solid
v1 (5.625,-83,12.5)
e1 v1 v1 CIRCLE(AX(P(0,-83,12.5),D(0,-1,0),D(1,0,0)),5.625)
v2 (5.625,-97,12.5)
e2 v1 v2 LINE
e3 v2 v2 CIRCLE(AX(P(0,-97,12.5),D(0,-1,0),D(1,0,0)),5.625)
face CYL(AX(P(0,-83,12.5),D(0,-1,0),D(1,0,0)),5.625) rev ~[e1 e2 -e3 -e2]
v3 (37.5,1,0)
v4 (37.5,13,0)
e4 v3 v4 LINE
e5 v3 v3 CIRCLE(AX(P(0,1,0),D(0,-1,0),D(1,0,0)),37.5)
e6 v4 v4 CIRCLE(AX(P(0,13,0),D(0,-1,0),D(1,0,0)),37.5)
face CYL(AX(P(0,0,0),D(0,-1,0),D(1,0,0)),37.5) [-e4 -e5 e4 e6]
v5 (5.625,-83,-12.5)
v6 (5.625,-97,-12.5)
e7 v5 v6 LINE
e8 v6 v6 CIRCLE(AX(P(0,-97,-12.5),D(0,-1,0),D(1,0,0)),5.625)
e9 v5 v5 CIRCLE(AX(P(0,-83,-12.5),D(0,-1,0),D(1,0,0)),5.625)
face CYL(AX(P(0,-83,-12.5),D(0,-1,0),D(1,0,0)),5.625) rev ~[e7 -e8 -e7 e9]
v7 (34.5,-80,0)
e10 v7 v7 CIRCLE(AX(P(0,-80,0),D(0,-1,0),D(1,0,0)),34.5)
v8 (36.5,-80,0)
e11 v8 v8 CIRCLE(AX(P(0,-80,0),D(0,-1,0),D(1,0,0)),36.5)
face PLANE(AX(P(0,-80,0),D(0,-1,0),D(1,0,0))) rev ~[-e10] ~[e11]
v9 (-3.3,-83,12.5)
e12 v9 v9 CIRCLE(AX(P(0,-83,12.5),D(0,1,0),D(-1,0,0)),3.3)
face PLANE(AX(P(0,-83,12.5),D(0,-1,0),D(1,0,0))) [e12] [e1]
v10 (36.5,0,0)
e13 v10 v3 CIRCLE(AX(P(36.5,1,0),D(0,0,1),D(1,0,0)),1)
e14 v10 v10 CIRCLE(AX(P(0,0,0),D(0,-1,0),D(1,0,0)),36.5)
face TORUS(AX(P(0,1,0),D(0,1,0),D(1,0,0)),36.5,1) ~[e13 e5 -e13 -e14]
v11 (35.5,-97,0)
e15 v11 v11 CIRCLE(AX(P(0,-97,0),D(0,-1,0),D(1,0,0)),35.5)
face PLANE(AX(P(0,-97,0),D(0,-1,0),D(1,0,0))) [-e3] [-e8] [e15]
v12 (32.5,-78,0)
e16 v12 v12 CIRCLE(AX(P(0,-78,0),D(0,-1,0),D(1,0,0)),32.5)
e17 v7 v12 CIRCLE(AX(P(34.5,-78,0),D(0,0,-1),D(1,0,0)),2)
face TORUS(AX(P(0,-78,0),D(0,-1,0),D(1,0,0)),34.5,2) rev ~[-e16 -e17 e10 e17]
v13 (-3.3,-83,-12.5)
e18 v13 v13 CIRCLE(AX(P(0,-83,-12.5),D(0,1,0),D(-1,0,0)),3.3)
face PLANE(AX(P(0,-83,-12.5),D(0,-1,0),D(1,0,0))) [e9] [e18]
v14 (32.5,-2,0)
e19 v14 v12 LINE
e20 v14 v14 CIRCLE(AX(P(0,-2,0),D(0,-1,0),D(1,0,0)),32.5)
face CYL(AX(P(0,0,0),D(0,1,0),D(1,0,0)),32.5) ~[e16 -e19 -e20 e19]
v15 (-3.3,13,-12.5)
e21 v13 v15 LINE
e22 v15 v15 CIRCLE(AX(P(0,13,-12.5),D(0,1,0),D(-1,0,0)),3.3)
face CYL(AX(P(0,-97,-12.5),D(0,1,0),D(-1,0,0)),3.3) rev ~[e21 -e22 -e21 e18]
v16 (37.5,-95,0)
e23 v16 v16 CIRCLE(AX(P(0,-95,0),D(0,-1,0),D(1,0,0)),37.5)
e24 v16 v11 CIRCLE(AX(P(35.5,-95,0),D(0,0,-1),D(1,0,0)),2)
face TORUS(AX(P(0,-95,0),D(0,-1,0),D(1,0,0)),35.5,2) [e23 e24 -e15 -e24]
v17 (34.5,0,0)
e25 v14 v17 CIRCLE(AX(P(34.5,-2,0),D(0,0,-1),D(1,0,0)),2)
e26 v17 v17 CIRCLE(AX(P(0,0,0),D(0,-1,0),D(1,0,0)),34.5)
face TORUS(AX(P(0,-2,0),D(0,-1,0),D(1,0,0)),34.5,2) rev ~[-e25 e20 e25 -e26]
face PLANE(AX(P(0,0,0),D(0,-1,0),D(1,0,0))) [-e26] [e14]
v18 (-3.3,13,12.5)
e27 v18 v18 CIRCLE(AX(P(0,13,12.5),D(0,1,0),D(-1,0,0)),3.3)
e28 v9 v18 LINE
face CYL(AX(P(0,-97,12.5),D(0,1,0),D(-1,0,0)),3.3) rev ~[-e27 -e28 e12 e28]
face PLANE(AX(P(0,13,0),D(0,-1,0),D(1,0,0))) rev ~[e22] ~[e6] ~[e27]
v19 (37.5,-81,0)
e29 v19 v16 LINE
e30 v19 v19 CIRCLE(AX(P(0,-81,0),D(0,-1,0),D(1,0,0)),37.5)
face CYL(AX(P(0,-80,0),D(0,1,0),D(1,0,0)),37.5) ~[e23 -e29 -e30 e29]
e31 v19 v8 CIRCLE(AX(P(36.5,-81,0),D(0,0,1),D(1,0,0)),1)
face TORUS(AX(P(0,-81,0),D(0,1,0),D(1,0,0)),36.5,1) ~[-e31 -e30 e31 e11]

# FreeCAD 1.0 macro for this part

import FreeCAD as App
import Part
import Sketcher

V = App.Vector
Q = App.Units.Quantity


def edges_at(feature, points):
    """Names of the edges that pass closest to the given points."""
    edges = feature.Shape.Edges
    near = lambda p: min(range(len(edges)), key=lambda i: edges[i].distToShape(Part.Vertex(*p))[0])
    return sorted({f"Edge{near(p) + 1}" for p in points})

doc = App.newDocument("Part")
params = doc.addObject("Spreadsheet::Sheet", "Params")
for row, (alias, value) in enumerate([
    ("sketch1_diameter", "65 mm"),
    ("pad1_length", "80 mm"),
    ("sketch2_diameter", "75 mm"),
    ("pad2_length", "13 mm"),
    ("sketch3_diameter", "75 mm"),
    ("pad3_length", "17 mm"),
    ("fillet_radius", "2 mm"),
    ("sketch4_diameter", "6.6 mm"),
    ("hole_diameter", "6.6 mm"),
    ("hole_cbore_diameter", "11.25 mm"),
    ("hole_cbore_depth", "14 mm"),
    ("fillet2_radius", "1 mm"),
], start=1):
    params.set(f"A{row}", alias)
    params.set(f"B{row}", "=" + value)
    params.setAlias(f"B{row}", alias)

body = doc.addObject("PartDesign::Body", "Body")

sketch1 = body.newObject("Sketcher::SketchObject", "Sketch")
sketch1.AttachmentSupport = (doc.getObject("XZ_Plane"), [""])
sketch1.MapMode = "FlatFace"
sketch1.addGeometry(Part.Circle(V(0, 0, 0), V(0, 0, 1), 32), False)
sketch1.addConstraint([
    Sketcher.Constraint("Coincident", 0, 3, -1, 1),
    Sketcher.Constraint("Diameter", 0, Q("65 mm")),
])
sketch1.setExpression("Constraints[1]", "Params.sketch1_diameter")
pad1 = body.newObject("PartDesign::Pad", "Pad")
pad1.Profile = sketch1
pad1.setExpression("Length", "Params.pad1_length")

sketch2 = body.newObject("Sketcher::SketchObject", "Sketch001")
sketch2.AttachmentSupport = (doc.getObject("XZ_Plane"), [""])
sketch2.MapMode = "FlatFace"
sketch2.addGeometry(Part.Circle(V(0, 0, 0), V(0, 0, 1), 38), False)
sketch2.addConstraint([
    Sketcher.Constraint("Coincident", 0, 3, -1, 1),
    Sketcher.Constraint("Diameter", 0, Q("75 mm")),
])
sketch2.setExpression("Constraints[1]", "Params.sketch2_diameter")
pad2 = body.newObject("PartDesign::Pad", "Pad001")
pad2.Profile = sketch2
pad2.setExpression("Length", "Params.pad2_length")
pad2.Reversed = True

sketch3 = body.newObject("Sketcher::SketchObject", "Sketch002")
sketch3.AttachmentSupport = (doc.getObject("XZ_Plane"), [""])
sketch3.MapMode = "FlatFace"
sketch3.AttachmentOffset = App.Placement(V(0, 0, 80), App.Rotation())
sketch3.addGeometry(Part.Circle(V(0, 0, 0), V(0, 0, 1), 38), False)
sketch3.addConstraint([
    Sketcher.Constraint("Coincident", 0, 3, -1, 1),
    Sketcher.Constraint("Diameter", 0, Q("75 mm")),
])
sketch3.setExpression("Constraints[1]", "Params.sketch3_diameter")
pad3 = body.newObject("PartDesign::Pad", "Pad002")
pad3.Profile = sketch3
pad3.setExpression("Length", "Params.pad3_length")
doc.recompute()

fillet = body.newObject("PartDesign::Fillet", "Fillet")
fillet.Base = (pad3, edges_at(pad3, [(-32.5, 0, 0), (-37.5, -97, 0), (-32.5, -80, 0)]))
fillet.setExpression("Radius", "Params.fillet_radius")

sketch4 = body.newObject("Sketcher::SketchObject", "Sketch003")
sketch4.AttachmentSupport = (doc.getObject("XZ_Plane"), [""])
sketch4.MapMode = "FlatFace"
sketch4.AttachmentOffset = App.Placement(V(0, 0, 97), App.Rotation())
sketch4.addGeometry([
    Part.Circle(V(0, 12.5, 0), V(0, 0, 1), 3.3),
    Part.Circle(V(0, -12.5, 0), V(0, 0, 1), 3.3),
], False)
sketch4.addConstraint([
    Sketcher.Constraint("Equal", 0, 1),
    Sketcher.Constraint("Symmetric", 0, 3, 1, 3, -1, 1),
    Sketcher.Constraint("PointOnObject", 0, 3, -2),
    Sketcher.Constraint("Diameter", 0, Q("6.6 mm")),
    Sketcher.Constraint("DistanceY", 1, 3, 0, 3, Q("25 mm")),
])
sketch4.setExpression("Constraints[3]", "Params.sketch4_diameter")
doc.recompute()
hole = body.newObject("PartDesign::Hole", "Hole")
hole.Profile = sketch4
hole.ThreadType = "None"
hole.setExpression("Diameter", "Params.hole_diameter")
hole.DepthType = "ThroughAll"
hole.HoleCutType = "Counterbore"
hole.setExpression("HoleCutDiameter", "Params.hole_cbore_diameter")
hole.setExpression("HoleCutDepth", "Params.hole_cbore_depth")
doc.recompute()

fillet2 = body.newObject("PartDesign::Fillet", "Fillet001")
fillet2.Base = (hole, edges_at(hole, [(-37.5, 0, 0), (-37.5, -80, 0)]))
fillet2.setExpression("Radius", "Params.fillet2_radius")

doc.recompute()
